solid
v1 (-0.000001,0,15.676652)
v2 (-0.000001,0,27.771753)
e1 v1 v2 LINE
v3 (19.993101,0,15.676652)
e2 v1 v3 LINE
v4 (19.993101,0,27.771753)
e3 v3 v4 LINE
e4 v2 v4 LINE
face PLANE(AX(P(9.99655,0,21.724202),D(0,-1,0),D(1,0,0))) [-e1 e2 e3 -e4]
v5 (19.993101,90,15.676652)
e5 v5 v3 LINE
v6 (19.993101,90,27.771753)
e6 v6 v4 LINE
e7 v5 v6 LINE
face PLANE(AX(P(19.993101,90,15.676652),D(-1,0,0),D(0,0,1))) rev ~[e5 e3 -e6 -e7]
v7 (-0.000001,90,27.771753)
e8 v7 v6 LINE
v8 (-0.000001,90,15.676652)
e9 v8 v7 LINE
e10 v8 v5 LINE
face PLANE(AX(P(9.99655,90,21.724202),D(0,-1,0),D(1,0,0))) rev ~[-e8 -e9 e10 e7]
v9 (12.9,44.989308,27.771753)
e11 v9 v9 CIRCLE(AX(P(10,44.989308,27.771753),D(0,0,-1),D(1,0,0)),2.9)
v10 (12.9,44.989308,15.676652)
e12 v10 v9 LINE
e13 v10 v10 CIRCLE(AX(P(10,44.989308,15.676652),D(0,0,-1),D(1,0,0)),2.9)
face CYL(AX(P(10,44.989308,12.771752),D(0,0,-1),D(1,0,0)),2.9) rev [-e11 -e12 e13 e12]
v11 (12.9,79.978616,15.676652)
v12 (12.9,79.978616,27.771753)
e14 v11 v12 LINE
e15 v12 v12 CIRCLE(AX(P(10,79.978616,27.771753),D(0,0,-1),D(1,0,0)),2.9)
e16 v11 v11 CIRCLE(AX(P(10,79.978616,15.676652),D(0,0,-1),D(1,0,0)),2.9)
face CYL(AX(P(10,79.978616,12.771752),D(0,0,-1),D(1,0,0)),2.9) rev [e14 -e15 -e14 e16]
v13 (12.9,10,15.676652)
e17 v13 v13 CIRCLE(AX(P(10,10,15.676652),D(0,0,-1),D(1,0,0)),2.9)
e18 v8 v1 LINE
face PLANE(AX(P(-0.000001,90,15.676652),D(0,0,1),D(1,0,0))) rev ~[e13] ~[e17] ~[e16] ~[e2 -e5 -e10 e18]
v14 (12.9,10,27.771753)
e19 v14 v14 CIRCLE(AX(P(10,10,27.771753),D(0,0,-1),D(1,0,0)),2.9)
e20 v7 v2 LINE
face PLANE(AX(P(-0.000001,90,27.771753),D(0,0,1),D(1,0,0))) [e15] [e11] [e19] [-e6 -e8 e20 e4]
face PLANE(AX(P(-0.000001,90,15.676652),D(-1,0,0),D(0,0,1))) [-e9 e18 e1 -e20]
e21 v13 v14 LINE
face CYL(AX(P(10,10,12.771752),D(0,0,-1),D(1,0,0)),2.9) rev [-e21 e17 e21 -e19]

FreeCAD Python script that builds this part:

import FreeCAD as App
import Part
import Sketcher
from FreeCAD import Vector
Q = App.Units.Quantity

doc = App.newDocument("Part")
body = doc.addObject("PartDesign::Body", "Body")
body.AllowCompound = True

sketch1 = body.newObject("Sketcher::SketchObject", "Sketch")
sketch1.AttachmentSupport = (doc.getObject("XY_Plane"), [""])
sketch1.MapMode = "FlatFace"
sketch1.AttachmentOffset = App.Placement(Vector(0, 0, 20.871752), App.Rotation())
sketch1.addGeometry(Part.Circle(Vector(10, -80, 0), Vector(0, 0, 1), 2.9), False)
sketch1.addGeometry(Part.Circle(Vector(10, -45, 0), Vector(0, 0, 1), 2.9), False)
sketch1.addGeometry(Part.Circle(Vector(10, -10, 0), Vector(0, 0, 1), 2.9), False)
sketch1.addConstraint(Sketcher.Constraint("Equal", 0, 1))
sketch1.addConstraint(Sketcher.Constraint("Equal", 1, 2))
sketch1.addConstraint(Sketcher.Constraint("Vertical", 0, 3, 1, 3))
sketch1.addConstraint(Sketcher.Constraint("Vertical", 1, 3, 2, 3))
sketch1.addConstraint(Sketcher.Constraint("Diameter", 0, Q("5.8 mm")))
sketch1.addConstraint(Sketcher.Constraint("DistanceX", -1, 1, 0, 3, Q("10 mm")))
sketch1.addConstraint(Sketcher.Constraint("DistanceY", 0, 3, -1, 1, Q("80 mm")))
sketch1.addConstraint(Sketcher.Constraint("DistanceY", 1, 3, -1, 1, Q("45.010692 mm")))
sketch1.addConstraint(Sketcher.Constraint("DistanceY", 2, 3, -1, 1, Q("10.021384 mm")))
pad1 = body.newObject("PartDesign::Pad", "Pad")
pad1.Profile = sketch1
pad1.Length = 20
body2 = doc.addObject("PartDesign::Body", "Body001")
body2.AllowCompound = True
doc.recompute()

body.Placement = App.Placement(Vector(0, 0, -15), App.Rotation(Vector(0, 0, 1), 0))
boolean = body2.newObject("PartDesign::Boolean", "Boolean")
boolean.Type = "Fuse"
boolean.addObjects([body])
body3 = doc.addObject("PartDesign::Body", "Body002")

sketch2 = body3.newObject("Sketcher::SketchObject", "Sketch001")
sketch2.AttachmentSupport = (doc.getObject("XZ_Plane002"), [""])
sketch2.MapMode = "FlatFace"
sketch2.addGeometry(Part.LineSegment(Vector(0, 21, 0), Vector(0, 9, 0)), False)
sketch2.addGeometry(Part.LineSegment(Vector(0, 9, 0), Vector(20, 9, 0)), False)
sketch2.addGeometry(Part.LineSegment(Vector(20, 9, 0), Vector(20, 21, 0)), False)
sketch2.addGeometry(Part.LineSegment(Vector(20, 21, 0), Vector(0, 21, 0)), False)
sketch2.addConstraint(Sketcher.Constraint("Coincident", 0, 2, 1, 1))
sketch2.addConstraint(Sketcher.Constraint("Coincident", 1, 2, 2, 1))
sketch2.addConstraint(Sketcher.Constraint("Coincident", 2, 2, 3, 1))
sketch2.addConstraint(Sketcher.Constraint("Coincident", 3, 2, 0, 1))
sketch2.addConstraint(Sketcher.Constraint("Vertical", 0))
sketch2.addConstraint(Sketcher.Constraint("Horizontal", 1))
sketch2.addConstraint(Sketcher.Constraint("Vertical", 2))
sketch2.addConstraint(Sketcher.Constraint("Horizontal", 3))
sketch2.addConstraint(Sketcher.Constraint("PointOnObject", 0, 2, -2))
sketch2.addConstraint(Sketcher.Constraint("DistanceX", 1, 1, 1, 2, Q("19.993101 mm")))
sketch2.addConstraint(Sketcher.Constraint("DistanceY", 0, 2, 0, 1, Q("12.095101 mm")))
sketch2.addConstraint(Sketcher.Constraint("DistanceY", -1, 1, 0, 2, Q("8.776651 mm")))
pad2 = body3.newObject("PartDesign::Pad", "Pad001")
pad2.Profile = sketch2
pad2.Length = 90
doc.recompute()

boolean2 = body3.newObject("PartDesign::Boolean", "Boolean001")
boolean2.Type = "Cut"
boolean2.addObjects([body2])
body4 = doc.addObject("PartDesign::Body", "Body003")
doc.recompute()

body3.Placement = App.Placement(Vector(0, 90, 6.9), App.Rotation(Vector(0, 0, 1), 0))
boolean3 = body4.newObject("PartDesign::Boolean", "Boolean002")
boolean3.Type = "Fuse"
boolean3.addObjects([body3])

doc.recompute()
